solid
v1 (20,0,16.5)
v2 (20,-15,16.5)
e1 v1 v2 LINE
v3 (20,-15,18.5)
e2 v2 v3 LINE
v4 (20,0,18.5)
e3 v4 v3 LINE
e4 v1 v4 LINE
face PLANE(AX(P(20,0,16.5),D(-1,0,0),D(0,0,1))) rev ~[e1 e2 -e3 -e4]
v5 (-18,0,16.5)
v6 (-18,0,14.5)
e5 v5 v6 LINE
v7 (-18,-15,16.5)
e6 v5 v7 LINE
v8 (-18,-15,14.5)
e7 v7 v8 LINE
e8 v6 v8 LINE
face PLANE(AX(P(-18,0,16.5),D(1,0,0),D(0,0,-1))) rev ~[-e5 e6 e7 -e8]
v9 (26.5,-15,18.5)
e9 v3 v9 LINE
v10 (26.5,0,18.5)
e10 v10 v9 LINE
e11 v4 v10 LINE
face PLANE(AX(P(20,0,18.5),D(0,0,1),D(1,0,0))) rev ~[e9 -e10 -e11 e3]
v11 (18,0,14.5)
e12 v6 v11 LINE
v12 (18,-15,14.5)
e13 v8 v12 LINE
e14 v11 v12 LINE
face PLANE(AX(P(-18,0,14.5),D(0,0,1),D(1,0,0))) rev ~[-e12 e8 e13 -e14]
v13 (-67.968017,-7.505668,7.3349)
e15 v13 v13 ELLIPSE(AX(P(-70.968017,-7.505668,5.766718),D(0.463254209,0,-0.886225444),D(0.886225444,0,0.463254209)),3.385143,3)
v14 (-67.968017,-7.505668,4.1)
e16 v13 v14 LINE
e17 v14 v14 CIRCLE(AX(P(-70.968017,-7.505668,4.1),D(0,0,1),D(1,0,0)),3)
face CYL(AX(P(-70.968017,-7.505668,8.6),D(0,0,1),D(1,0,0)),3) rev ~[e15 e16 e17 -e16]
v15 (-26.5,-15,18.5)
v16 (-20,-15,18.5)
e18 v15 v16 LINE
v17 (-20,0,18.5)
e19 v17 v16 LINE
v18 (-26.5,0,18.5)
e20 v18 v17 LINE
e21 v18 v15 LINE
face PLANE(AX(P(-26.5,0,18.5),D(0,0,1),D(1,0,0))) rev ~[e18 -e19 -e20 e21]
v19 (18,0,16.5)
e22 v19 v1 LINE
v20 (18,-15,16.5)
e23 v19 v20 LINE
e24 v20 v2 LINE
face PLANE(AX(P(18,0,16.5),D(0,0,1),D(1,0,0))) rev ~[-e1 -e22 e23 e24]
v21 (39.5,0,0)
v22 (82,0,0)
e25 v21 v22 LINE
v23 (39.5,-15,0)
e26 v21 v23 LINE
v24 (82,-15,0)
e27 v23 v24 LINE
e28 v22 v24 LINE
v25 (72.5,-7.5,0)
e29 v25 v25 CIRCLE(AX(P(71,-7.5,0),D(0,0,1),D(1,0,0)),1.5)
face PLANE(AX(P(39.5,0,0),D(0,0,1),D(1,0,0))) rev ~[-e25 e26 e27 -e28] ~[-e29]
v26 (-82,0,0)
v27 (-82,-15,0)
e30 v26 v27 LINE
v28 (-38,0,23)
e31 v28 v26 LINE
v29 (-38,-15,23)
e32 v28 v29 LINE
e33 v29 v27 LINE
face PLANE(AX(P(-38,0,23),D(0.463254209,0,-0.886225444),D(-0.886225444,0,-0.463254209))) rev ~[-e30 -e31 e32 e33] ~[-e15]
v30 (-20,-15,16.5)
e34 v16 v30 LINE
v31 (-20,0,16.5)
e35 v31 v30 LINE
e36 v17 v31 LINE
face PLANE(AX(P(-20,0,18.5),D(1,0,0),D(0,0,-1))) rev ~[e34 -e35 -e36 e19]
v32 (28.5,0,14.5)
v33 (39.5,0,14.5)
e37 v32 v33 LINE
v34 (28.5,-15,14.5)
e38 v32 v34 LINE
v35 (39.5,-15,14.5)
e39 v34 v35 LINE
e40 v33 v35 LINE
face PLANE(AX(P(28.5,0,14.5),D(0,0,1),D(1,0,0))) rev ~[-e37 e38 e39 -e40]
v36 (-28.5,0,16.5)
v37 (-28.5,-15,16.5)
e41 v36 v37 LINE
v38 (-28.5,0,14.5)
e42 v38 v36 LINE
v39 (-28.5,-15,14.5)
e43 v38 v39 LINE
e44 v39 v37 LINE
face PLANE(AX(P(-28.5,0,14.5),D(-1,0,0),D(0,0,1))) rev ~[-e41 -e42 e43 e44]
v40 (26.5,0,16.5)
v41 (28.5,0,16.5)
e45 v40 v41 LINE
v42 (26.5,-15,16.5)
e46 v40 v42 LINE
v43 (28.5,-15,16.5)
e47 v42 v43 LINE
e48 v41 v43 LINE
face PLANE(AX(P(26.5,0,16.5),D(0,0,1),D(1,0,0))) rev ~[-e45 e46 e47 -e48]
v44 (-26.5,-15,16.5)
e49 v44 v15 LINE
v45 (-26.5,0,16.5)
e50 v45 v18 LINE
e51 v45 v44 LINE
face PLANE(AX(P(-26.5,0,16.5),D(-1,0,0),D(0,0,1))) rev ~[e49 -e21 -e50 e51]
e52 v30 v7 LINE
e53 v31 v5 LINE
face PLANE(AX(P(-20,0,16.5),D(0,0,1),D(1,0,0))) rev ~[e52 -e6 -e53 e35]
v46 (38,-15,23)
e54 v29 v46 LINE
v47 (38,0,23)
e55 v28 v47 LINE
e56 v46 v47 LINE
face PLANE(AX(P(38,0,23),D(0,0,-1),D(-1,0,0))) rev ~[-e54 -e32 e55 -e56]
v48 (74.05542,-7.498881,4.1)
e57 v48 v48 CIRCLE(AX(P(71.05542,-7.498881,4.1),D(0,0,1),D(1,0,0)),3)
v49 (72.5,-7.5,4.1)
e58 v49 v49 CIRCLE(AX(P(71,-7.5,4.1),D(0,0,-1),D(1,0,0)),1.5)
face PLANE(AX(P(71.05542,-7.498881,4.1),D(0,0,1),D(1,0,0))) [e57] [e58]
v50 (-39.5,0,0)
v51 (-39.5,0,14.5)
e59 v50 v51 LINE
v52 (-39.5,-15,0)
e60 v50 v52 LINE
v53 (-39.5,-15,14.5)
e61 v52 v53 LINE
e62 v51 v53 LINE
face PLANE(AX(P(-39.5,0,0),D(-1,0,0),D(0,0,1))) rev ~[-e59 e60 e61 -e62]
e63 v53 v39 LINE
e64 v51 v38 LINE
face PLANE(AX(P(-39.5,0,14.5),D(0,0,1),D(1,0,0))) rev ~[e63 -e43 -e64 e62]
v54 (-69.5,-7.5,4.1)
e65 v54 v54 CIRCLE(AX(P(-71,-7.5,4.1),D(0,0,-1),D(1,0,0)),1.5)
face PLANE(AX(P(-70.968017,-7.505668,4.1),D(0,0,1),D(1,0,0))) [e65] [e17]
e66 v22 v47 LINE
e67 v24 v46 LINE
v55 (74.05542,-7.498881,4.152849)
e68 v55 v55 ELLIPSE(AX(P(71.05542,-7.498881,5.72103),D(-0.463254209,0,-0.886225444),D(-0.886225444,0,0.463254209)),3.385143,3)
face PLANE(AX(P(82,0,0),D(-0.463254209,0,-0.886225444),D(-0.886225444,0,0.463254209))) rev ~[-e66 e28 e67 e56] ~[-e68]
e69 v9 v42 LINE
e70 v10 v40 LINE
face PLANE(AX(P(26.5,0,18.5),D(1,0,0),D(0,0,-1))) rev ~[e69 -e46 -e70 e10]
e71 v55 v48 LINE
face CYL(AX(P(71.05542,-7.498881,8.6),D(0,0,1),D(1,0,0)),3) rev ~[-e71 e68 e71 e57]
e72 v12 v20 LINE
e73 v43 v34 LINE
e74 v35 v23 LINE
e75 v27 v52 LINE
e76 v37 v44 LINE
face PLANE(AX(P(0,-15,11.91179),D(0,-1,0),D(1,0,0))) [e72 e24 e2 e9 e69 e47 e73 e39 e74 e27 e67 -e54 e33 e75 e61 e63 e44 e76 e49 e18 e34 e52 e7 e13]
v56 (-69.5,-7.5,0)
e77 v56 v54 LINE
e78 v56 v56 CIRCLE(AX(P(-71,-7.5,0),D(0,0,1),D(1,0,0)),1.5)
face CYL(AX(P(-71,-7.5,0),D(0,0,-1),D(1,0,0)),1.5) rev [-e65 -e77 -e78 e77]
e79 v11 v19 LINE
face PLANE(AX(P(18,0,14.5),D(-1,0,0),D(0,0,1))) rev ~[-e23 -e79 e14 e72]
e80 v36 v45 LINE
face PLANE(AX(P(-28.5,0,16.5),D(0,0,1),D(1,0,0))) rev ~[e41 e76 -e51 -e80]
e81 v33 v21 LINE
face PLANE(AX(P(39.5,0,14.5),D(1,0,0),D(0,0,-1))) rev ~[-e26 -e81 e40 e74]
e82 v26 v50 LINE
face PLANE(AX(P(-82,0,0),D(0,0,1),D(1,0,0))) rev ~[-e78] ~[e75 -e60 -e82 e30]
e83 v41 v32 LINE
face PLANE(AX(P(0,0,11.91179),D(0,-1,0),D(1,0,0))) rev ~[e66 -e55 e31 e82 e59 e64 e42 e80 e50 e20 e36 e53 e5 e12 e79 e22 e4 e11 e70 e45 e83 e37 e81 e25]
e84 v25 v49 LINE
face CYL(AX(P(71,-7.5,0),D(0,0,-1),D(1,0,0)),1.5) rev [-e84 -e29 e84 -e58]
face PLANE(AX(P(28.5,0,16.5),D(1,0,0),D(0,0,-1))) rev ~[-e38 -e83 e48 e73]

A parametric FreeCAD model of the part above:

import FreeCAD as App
import Part
import Sketcher

V = App.Vector
Q = App.Units.Quantity

doc = App.newDocument("Part")
body = doc.addObject("PartDesign::Body", "Body")

# Sketch on XZ plane
sketch1 = body.newObject("Sketcher::SketchObject", "Sketch")
sketch1.AttachmentSupport = (doc.getObject("XZ_Plane"), [""])
sketch1.MapMode = "FlatFace"
sketch1.addGeometry([
    Part.LineSegment(V(-82, 0, 0), V(-39.5, 0, 0)),  # 0
    Part.LineSegment(V(-39.5, 0, 0), V(-39.5, 14.5, 0)),  # 1
    Part.LineSegment(V(-39.5, 14.5, 0), V(-28.5, 14.5, 0)),  # 2
    Part.LineSegment(V(-28.5, 14.5, 0), V(-28.5, 16.5, 0)),  # 3
    Part.LineSegment(V(-28.5, 16.5, 0), V(-26.5, 16.5, 0)),  # 4
    Part.LineSegment(V(-26.5, 16.5, 0), V(-26.5, 18.5, 0)),  # 5
    Part.LineSegment(V(-26.5, 18.5, 0), V(-20, 18.5, 0)),  # 6
    Part.LineSegment(V(-20, 18.5, 0), V(-20, 16.5, 0)),  # 7
    Part.LineSegment(V(-20, 16.5, 0), V(-18, 16.5, 0)),  # 8
    Part.LineSegment(V(-18, 16.5, 0), V(-18, 14.5, 0)),  # 9
    Part.LineSegment(V(-18, 14.5, 0), V(18, 14.5, 0)),  # 10
    Part.LineSegment(V(18, 14.5, 0), V(18, 16.5, 0)),  # 11
    Part.LineSegment(V(18, 16.5, 0), V(20, 16.5, 0)),  # 12
    Part.LineSegment(V(20, 16.5, 0), V(20, 18.5, 0)),  # 13
    Part.LineSegment(V(20, 18.5, 0), V(26.5, 18.5, 0)),  # 14
    Part.LineSegment(V(26.5, 18.5, 0), V(26.5, 16.5, 0)),  # 15
    Part.LineSegment(V(26.5, 16.5, 0), V(28.5, 16.5, 0)),  # 16
    Part.LineSegment(V(28.5, 16.5, 0), V(28.5, 14.5, 0)),  # 17
    Part.LineSegment(V(28.5, 14.5, 0), V(39.5, 14.5, 0)),  # 18
    Part.LineSegment(V(39.5, 14.5, 0), V(39.5, 0, 0)),  # 19
    Part.LineSegment(V(39.5, 0, 0), V(82, 0, 0)),  # 20
    Part.LineSegment(V(82, 0, 0), V(38, 23, 0)),  # 21
    Part.LineSegment(V(38, 23, 0), V(-38, 23, 0)),  # 22
    Part.LineSegment(V(-38, 23, 0), V(-82, 0, 0)),  # 23
], False)
sketch1.addConstraint([
    Sketcher.Constraint("Coincident", 0, 2, 1, 1),
    Sketcher.Constraint("Coincident", 1, 2, 2, 1),
    Sketcher.Constraint("Coincident", 2, 2, 3, 1),
    Sketcher.Constraint("Coincident", 3, 2, 4, 1),
    Sketcher.Constraint("Coincident", 4, 2, 5, 1),
    Sketcher.Constraint("Coincident", 5, 2, 6, 1),
    Sketcher.Constraint("Coincident", 6, 2, 7, 1),
    Sketcher.Constraint("Coincident", 7, 2, 8, 1),
    Sketcher.Constraint("Coincident", 8, 2, 9, 1),
    Sketcher.Constraint("Coincident", 9, 2, 10, 1),
    Sketcher.Constraint("Coincident", 10, 2, 11, 1),
    Sketcher.Constraint("Coincident", 11, 2, 12, 1),
    Sketcher.Constraint("Coincident", 12, 2, 13, 1),
    Sketcher.Constraint("Coincident", 13, 2, 14, 1),
    Sketcher.Constraint("Coincident", 14, 2, 15, 1),
    Sketcher.Constraint("Coincident", 15, 2, 16, 1),
    Sketcher.Constraint("Coincident", 16, 2, 17, 1),
    Sketcher.Constraint("Coincident", 17, 2, 18, 1),
    Sketcher.Constraint("Coincident", 18, 2, 19, 1),
    Sketcher.Constraint("Coincident", 19, 2, 20, 1),
    Sketcher.Constraint("Coincident", 20, 2, 21, 1),
    Sketcher.Constraint("Coincident", 21, 2, 22, 1),
    Sketcher.Constraint("Coincident", 22, 2, 23, 1),
    Sketcher.Constraint("Coincident", 23, 2, 0, 1),
    Sketcher.Constraint("Horizontal", 0),
    Sketcher.Constraint("Vertical", 1),
    Sketcher.Constraint("Horizontal", 2),
    Sketcher.Constraint("Vertical", 3),
    Sketcher.Constraint("Horizontal", 4),
    Sketcher.Constraint("Vertical", 5),
    Sketcher.Constraint("Horizontal", 6),
    Sketcher.Constraint("Vertical", 7),
    Sketcher.Constraint("Horizontal", 8),
    Sketcher.Constraint("Vertical", 9),
    Sketcher.Constraint("Horizontal", 10),
    Sketcher.Constraint("Vertical", 11),
    Sketcher.Constraint("Horizontal", 12),
    Sketcher.Constraint("Vertical", 13),
    Sketcher.Constraint("Horizontal", 14),
    Sketcher.Constraint("Vertical", 15),
    Sketcher.Constraint("Horizontal", 16),
    Sketcher.Constraint("Vertical", 17),
    Sketcher.Constraint("Horizontal", 18),
    Sketcher.Constraint("Vertical", 19),
    Sketcher.Constraint("Horizontal", 20),
    Sketcher.Constraint("Horizontal", 22),
    Sketcher.Constraint("Symmetric", 0, 2, 19, 2, -1, 1),
    Sketcher.Constraint("Symmetric", 8, 2, 11, 2, -2),
    Sketcher.Constraint("Symmetric", 6, 2, 13, 2, -2),
    Sketcher.Constraint("Symmetric", 4, 2, 15, 2, -2),
    Sketcher.Constraint("Symmetric", 2, 2, 17, 2, -2),
    Sketcher.Constraint("Symmetric", 20, 2, 23, 2, -2),
    Sketcher.Constraint("Horizontal", 4, 2, 7, 2),
    Sketcher.Constraint("Horizontal", 2, 2, 9, 2),
    Sketcher.Constraint("Equal", 4, 8),
    Sketcher.Constraint("Equal", 16, 3),
    Sketcher.Constraint("Equal", 3, 5),
    Sketcher.Constraint("Equal", 21, 23),
    Sketcher.Constraint("DistanceX", 2, 1, 2, 2, Q("11 mm")),
    Sketcher.Constraint("DistanceX", 4, 1, 4, 2, Q("2 mm")),
    Sketcher.Constraint("DistanceX", 10, 1, 10, 2, Q("36 mm")),
    Sketcher.Constraint("DistanceX", 22, 2, 22, 1, Q("76 mm")),
    Sketcher.Constraint("DistanceX", 0, 1, 0, 2, Q("42.5 mm")),
    Sketcher.Constraint("DistanceX", 6, 1, 6, 2, Q("6.5 mm")),
    Sketcher.Constraint("DistanceY", 1, 1, 1, 2, Q("14.5 mm")),
    Sketcher.Constraint("DistanceY", -1, 1, 21, 2, Q("23 mm")),
])
pad1 = body.newObject("PartDesign::Pad", "Pad")
pad1.Profile = sketch1
pad1.Length = 15

# Sketch on XY plane
sketch2 = body.newObject("Sketcher::SketchObject", "Sketch001")
sketch2.AttachmentSupport = (doc.getObject("XY_Plane"), [""])
sketch2.MapMode = "FlatFace"
sketch2.addGeometry([
    Part.Circle(V(71, -7.5, 0), V(0, 0, 1), 1.5),
    Part.Circle(V(-71, -7.5, 0), V(0, 0, 1), 1.5),
], False)
sketch2.addConstraint([
    Sketcher.Constraint("Equal", 0, 1),
    Sketcher.Constraint("Symmetric", 0, 3, 1, 3, -2),
    Sketcher.Constraint("Diameter", 0, Q("3 mm")),
    Sketcher.Constraint("DistanceX", -1, 1, 0, 3, Q("71 mm")),
    Sketcher.Constraint("DistanceY", 0, 3, -1, 1, Q("7.5 mm")),
])
pocket1 = body.newObject("PartDesign::Pocket", "Pocket")
pocket1.Profile = sketch2
pocket1.Type = "ThroughAll"
pocket1.Reversed = True

# Sketch on XY plane
sketch3 = body.newObject("Sketcher::SketchObject", "Sketch002")
sketch3.AttachmentSupport = (doc.getObject("XY_Plane"), [""])
sketch3.MapMode = "FlatFace"
sketch3.AttachmentOffset = App.Placement(V(0, 0, 8.6), App.Rotation())
sketch3.addGeometry([
    Part.Circle(V(-70.968017, -7.505668, 0), V(0, 0, 1), 3),
    Part.Circle(V(71.05542, -7.498881, 0), V(0, 0, 1), 3),
], False)
sketch3.addConstraint([
    Sketcher.Constraint("Equal", 0, 1),
    Sketcher.Constraint("Diameter", 0, Q("6 mm")),
    Sketcher.Constraint("DistanceX", -1, 1, 1, 3, Q("71.05542 mm")),
    Sketcher.Constraint("DistanceY", 1, 3, -1, 1, Q("7.498881 mm")),
    Sketcher.Constraint("DistanceX", 0, 3, -1, 1, Q("70.968017 mm")),
    Sketcher.Constraint("DistanceY", 0, 3, -1, 1, Q("7.505668 mm")),
])
pocket2 = body.newObject("PartDesign::Pocket", "Pocket001")
pocket2.Profile = sketch3
pocket2.Length = 4.5

# Sketch on XY plane
sketch4 = body.newObject("Sketcher::SketchObject", "Sketch003")
sketch4.AttachmentSupport = (doc.getObject("XY_Plane"), [""])
sketch4.MapMode = "FlatFace"
sketch4.AttachmentOffset = App.Placement(V(0, 0, 23), App.Rotation())
sketch4.addGeometry([
    Part.LineSegment(V(38, -15, 0), V(38, -13.471063, 0)),  # 0
    Part.LineSegment(V(38, -13.471063, 0), V(7.746612, -7.5, 0)),  # 1
    Part.LineSegment(V(7.746612, -7.5, 0), V(38, -1.528937, 0)),  # 2
    Part.LineSegment(V(38, -1.528937, 0), V(38, 0, 0)),  # 3
    Part.LineSegment(V(38, 0, 0), V(30.253388, 0, 0)),  # 4
    Part.LineSegment(V(30.253388, 0, 0), V(0, -5.971063, 0)),  # 5
    Part.LineSegment(V(0, -5.971063, 0), V(-30.253388, 0, 0)),  # 6
    Part.LineSegment(V(-30.253388, 0, 0), V(-38, 0, 0)),  # 7
    Part.LineSegment(V(-38, 0, 0), V(-38, -1.528937, 0)),  # 8
    Part.LineSegment(V(-38, -1.528937, 0), V(-7.746612, -7.5, 0)),  # 9
    Part.LineSegment(V(-7.746612, -7.5, 0), V(-38, -13.471063, 0)),  # 10
    Part.LineSegment(V(-38, -13.471063, 0), V(-38, -15, 0)),  # 11
    Part.LineSegment(V(-38, -15, 0), V(-30.253388, -15, 0)),  # 12
    Part.LineSegment(V(-30.253388, -15, 0), V(0, -9.028937, 0)),  # 13
    Part.LineSegment(V(0, -9.028937, 0), V(30.253388, -15, 0)),  # 14
    Part.LineSegment(V(30.253388, -15, 0), V(38, -15, 0)),  # 15
], False)
sketch4.addConstraint([
    Sketcher.Constraint("Coincident", 0, 2, 1, 1),
    Sketcher.Constraint("Coincident", 1, 2, 2, 1),
    Sketcher.Constraint("Coincident", 2, 2, 3, 1),
    Sketcher.Constraint("Coincident", 3, 2, 4, 1),
    Sketcher.Constraint("Coincident", 4, 2, 5, 1),
    Sketcher.Constraint("Coincident", 5, 2, 6, 1),
    Sketcher.Constraint("Coincident", 6, 2, 7, 1),
    Sketcher.Constraint("Coincident", 7, 2, 8, 1),
    Sketcher.Constraint("Coincident", 8, 2, 9, 1),
    Sketcher.Constraint("Coincident", 9, 2, 10, 1),
    Sketcher.Constraint("Coincident", 10, 2, 11, 1),
    Sketcher.Constraint("Coincident", 11, 2, 12, 1),
    Sketcher.Constraint("Coincident", 12, 2, 13, 1),
    Sketcher.Constraint("Coincident", 13, 2, 14, 1),
    Sketcher.Constraint("Coincident", 14, 2, 15, 1),
    Sketcher.Constraint("Coincident", 15, 2, 0, 1),
    Sketcher.Constraint("Vertical", 0),
    Sketcher.Constraint("Vertical", 3),
    Sketcher.Constraint("Horizontal", 4),
    Sketcher.Constraint("Horizontal", 7),
    Sketcher.Constraint("Vertical", 8),
    Sketcher.Constraint("Vertical", 11),
    Sketcher.Constraint("Horizontal", 12),
    Sketcher.Constraint("Horizontal", 15),
    Sketcher.Constraint("Symmetric", 4, 2, 6, 2, -1, 1),
    Sketcher.Constraint("Symmetric", 3, 2, 7, 2, -2),
    Sketcher.Constraint("Symmetric", 1, 2, 9, 2, -2),
    Sketcher.Constraint("Symmetric", 0, 2, 10, 2, -2),
    Sketcher.Constraint("Symmetric", 12, 2, 14, 2, -2),
    Sketcher.Constraint("PointOnObject", 5, 2, -2),
    Sketcher.Constraint("PointOnObject", 13, 2, -2),
    Sketcher.Constraint("Parallel", 2, 5),
    Sketcher.Constraint("Parallel", 1, 6),
    Sketcher.Constraint("Parallel", 6, 9),
    Sketcher.Constraint("Parallel", 10, 13),
    Sketcher.Constraint("Vertical", 0, 2, 2, 2),
    Sketcher.Constraint("Vertical", 6, 2, 12, 2),
    Sketcher.Constraint("Equal", 0, 3),
    Sketcher.Constraint("Equal", 2, 5),
    Sketcher.Constraint("DistanceX", -1, 1, 0, 2, Q("38 mm")),
    Sketcher.Constraint("DistanceY", 11, 2, -1, 1, Q("15 mm")),
    Sketcher.Constraint("DistanceX", 4, 2, 4, 1, Q("7.746612 mm")),
    Sketcher.Constraint("Distance", 1, Q("30.837008 mm")),
])
pad2 = body.newObject("PartDesign::Pad", "Pad001")
pad2.Profile = sketch4
pad2.Length = 4.3
pad2.Reversed = True

doc.recompute()
